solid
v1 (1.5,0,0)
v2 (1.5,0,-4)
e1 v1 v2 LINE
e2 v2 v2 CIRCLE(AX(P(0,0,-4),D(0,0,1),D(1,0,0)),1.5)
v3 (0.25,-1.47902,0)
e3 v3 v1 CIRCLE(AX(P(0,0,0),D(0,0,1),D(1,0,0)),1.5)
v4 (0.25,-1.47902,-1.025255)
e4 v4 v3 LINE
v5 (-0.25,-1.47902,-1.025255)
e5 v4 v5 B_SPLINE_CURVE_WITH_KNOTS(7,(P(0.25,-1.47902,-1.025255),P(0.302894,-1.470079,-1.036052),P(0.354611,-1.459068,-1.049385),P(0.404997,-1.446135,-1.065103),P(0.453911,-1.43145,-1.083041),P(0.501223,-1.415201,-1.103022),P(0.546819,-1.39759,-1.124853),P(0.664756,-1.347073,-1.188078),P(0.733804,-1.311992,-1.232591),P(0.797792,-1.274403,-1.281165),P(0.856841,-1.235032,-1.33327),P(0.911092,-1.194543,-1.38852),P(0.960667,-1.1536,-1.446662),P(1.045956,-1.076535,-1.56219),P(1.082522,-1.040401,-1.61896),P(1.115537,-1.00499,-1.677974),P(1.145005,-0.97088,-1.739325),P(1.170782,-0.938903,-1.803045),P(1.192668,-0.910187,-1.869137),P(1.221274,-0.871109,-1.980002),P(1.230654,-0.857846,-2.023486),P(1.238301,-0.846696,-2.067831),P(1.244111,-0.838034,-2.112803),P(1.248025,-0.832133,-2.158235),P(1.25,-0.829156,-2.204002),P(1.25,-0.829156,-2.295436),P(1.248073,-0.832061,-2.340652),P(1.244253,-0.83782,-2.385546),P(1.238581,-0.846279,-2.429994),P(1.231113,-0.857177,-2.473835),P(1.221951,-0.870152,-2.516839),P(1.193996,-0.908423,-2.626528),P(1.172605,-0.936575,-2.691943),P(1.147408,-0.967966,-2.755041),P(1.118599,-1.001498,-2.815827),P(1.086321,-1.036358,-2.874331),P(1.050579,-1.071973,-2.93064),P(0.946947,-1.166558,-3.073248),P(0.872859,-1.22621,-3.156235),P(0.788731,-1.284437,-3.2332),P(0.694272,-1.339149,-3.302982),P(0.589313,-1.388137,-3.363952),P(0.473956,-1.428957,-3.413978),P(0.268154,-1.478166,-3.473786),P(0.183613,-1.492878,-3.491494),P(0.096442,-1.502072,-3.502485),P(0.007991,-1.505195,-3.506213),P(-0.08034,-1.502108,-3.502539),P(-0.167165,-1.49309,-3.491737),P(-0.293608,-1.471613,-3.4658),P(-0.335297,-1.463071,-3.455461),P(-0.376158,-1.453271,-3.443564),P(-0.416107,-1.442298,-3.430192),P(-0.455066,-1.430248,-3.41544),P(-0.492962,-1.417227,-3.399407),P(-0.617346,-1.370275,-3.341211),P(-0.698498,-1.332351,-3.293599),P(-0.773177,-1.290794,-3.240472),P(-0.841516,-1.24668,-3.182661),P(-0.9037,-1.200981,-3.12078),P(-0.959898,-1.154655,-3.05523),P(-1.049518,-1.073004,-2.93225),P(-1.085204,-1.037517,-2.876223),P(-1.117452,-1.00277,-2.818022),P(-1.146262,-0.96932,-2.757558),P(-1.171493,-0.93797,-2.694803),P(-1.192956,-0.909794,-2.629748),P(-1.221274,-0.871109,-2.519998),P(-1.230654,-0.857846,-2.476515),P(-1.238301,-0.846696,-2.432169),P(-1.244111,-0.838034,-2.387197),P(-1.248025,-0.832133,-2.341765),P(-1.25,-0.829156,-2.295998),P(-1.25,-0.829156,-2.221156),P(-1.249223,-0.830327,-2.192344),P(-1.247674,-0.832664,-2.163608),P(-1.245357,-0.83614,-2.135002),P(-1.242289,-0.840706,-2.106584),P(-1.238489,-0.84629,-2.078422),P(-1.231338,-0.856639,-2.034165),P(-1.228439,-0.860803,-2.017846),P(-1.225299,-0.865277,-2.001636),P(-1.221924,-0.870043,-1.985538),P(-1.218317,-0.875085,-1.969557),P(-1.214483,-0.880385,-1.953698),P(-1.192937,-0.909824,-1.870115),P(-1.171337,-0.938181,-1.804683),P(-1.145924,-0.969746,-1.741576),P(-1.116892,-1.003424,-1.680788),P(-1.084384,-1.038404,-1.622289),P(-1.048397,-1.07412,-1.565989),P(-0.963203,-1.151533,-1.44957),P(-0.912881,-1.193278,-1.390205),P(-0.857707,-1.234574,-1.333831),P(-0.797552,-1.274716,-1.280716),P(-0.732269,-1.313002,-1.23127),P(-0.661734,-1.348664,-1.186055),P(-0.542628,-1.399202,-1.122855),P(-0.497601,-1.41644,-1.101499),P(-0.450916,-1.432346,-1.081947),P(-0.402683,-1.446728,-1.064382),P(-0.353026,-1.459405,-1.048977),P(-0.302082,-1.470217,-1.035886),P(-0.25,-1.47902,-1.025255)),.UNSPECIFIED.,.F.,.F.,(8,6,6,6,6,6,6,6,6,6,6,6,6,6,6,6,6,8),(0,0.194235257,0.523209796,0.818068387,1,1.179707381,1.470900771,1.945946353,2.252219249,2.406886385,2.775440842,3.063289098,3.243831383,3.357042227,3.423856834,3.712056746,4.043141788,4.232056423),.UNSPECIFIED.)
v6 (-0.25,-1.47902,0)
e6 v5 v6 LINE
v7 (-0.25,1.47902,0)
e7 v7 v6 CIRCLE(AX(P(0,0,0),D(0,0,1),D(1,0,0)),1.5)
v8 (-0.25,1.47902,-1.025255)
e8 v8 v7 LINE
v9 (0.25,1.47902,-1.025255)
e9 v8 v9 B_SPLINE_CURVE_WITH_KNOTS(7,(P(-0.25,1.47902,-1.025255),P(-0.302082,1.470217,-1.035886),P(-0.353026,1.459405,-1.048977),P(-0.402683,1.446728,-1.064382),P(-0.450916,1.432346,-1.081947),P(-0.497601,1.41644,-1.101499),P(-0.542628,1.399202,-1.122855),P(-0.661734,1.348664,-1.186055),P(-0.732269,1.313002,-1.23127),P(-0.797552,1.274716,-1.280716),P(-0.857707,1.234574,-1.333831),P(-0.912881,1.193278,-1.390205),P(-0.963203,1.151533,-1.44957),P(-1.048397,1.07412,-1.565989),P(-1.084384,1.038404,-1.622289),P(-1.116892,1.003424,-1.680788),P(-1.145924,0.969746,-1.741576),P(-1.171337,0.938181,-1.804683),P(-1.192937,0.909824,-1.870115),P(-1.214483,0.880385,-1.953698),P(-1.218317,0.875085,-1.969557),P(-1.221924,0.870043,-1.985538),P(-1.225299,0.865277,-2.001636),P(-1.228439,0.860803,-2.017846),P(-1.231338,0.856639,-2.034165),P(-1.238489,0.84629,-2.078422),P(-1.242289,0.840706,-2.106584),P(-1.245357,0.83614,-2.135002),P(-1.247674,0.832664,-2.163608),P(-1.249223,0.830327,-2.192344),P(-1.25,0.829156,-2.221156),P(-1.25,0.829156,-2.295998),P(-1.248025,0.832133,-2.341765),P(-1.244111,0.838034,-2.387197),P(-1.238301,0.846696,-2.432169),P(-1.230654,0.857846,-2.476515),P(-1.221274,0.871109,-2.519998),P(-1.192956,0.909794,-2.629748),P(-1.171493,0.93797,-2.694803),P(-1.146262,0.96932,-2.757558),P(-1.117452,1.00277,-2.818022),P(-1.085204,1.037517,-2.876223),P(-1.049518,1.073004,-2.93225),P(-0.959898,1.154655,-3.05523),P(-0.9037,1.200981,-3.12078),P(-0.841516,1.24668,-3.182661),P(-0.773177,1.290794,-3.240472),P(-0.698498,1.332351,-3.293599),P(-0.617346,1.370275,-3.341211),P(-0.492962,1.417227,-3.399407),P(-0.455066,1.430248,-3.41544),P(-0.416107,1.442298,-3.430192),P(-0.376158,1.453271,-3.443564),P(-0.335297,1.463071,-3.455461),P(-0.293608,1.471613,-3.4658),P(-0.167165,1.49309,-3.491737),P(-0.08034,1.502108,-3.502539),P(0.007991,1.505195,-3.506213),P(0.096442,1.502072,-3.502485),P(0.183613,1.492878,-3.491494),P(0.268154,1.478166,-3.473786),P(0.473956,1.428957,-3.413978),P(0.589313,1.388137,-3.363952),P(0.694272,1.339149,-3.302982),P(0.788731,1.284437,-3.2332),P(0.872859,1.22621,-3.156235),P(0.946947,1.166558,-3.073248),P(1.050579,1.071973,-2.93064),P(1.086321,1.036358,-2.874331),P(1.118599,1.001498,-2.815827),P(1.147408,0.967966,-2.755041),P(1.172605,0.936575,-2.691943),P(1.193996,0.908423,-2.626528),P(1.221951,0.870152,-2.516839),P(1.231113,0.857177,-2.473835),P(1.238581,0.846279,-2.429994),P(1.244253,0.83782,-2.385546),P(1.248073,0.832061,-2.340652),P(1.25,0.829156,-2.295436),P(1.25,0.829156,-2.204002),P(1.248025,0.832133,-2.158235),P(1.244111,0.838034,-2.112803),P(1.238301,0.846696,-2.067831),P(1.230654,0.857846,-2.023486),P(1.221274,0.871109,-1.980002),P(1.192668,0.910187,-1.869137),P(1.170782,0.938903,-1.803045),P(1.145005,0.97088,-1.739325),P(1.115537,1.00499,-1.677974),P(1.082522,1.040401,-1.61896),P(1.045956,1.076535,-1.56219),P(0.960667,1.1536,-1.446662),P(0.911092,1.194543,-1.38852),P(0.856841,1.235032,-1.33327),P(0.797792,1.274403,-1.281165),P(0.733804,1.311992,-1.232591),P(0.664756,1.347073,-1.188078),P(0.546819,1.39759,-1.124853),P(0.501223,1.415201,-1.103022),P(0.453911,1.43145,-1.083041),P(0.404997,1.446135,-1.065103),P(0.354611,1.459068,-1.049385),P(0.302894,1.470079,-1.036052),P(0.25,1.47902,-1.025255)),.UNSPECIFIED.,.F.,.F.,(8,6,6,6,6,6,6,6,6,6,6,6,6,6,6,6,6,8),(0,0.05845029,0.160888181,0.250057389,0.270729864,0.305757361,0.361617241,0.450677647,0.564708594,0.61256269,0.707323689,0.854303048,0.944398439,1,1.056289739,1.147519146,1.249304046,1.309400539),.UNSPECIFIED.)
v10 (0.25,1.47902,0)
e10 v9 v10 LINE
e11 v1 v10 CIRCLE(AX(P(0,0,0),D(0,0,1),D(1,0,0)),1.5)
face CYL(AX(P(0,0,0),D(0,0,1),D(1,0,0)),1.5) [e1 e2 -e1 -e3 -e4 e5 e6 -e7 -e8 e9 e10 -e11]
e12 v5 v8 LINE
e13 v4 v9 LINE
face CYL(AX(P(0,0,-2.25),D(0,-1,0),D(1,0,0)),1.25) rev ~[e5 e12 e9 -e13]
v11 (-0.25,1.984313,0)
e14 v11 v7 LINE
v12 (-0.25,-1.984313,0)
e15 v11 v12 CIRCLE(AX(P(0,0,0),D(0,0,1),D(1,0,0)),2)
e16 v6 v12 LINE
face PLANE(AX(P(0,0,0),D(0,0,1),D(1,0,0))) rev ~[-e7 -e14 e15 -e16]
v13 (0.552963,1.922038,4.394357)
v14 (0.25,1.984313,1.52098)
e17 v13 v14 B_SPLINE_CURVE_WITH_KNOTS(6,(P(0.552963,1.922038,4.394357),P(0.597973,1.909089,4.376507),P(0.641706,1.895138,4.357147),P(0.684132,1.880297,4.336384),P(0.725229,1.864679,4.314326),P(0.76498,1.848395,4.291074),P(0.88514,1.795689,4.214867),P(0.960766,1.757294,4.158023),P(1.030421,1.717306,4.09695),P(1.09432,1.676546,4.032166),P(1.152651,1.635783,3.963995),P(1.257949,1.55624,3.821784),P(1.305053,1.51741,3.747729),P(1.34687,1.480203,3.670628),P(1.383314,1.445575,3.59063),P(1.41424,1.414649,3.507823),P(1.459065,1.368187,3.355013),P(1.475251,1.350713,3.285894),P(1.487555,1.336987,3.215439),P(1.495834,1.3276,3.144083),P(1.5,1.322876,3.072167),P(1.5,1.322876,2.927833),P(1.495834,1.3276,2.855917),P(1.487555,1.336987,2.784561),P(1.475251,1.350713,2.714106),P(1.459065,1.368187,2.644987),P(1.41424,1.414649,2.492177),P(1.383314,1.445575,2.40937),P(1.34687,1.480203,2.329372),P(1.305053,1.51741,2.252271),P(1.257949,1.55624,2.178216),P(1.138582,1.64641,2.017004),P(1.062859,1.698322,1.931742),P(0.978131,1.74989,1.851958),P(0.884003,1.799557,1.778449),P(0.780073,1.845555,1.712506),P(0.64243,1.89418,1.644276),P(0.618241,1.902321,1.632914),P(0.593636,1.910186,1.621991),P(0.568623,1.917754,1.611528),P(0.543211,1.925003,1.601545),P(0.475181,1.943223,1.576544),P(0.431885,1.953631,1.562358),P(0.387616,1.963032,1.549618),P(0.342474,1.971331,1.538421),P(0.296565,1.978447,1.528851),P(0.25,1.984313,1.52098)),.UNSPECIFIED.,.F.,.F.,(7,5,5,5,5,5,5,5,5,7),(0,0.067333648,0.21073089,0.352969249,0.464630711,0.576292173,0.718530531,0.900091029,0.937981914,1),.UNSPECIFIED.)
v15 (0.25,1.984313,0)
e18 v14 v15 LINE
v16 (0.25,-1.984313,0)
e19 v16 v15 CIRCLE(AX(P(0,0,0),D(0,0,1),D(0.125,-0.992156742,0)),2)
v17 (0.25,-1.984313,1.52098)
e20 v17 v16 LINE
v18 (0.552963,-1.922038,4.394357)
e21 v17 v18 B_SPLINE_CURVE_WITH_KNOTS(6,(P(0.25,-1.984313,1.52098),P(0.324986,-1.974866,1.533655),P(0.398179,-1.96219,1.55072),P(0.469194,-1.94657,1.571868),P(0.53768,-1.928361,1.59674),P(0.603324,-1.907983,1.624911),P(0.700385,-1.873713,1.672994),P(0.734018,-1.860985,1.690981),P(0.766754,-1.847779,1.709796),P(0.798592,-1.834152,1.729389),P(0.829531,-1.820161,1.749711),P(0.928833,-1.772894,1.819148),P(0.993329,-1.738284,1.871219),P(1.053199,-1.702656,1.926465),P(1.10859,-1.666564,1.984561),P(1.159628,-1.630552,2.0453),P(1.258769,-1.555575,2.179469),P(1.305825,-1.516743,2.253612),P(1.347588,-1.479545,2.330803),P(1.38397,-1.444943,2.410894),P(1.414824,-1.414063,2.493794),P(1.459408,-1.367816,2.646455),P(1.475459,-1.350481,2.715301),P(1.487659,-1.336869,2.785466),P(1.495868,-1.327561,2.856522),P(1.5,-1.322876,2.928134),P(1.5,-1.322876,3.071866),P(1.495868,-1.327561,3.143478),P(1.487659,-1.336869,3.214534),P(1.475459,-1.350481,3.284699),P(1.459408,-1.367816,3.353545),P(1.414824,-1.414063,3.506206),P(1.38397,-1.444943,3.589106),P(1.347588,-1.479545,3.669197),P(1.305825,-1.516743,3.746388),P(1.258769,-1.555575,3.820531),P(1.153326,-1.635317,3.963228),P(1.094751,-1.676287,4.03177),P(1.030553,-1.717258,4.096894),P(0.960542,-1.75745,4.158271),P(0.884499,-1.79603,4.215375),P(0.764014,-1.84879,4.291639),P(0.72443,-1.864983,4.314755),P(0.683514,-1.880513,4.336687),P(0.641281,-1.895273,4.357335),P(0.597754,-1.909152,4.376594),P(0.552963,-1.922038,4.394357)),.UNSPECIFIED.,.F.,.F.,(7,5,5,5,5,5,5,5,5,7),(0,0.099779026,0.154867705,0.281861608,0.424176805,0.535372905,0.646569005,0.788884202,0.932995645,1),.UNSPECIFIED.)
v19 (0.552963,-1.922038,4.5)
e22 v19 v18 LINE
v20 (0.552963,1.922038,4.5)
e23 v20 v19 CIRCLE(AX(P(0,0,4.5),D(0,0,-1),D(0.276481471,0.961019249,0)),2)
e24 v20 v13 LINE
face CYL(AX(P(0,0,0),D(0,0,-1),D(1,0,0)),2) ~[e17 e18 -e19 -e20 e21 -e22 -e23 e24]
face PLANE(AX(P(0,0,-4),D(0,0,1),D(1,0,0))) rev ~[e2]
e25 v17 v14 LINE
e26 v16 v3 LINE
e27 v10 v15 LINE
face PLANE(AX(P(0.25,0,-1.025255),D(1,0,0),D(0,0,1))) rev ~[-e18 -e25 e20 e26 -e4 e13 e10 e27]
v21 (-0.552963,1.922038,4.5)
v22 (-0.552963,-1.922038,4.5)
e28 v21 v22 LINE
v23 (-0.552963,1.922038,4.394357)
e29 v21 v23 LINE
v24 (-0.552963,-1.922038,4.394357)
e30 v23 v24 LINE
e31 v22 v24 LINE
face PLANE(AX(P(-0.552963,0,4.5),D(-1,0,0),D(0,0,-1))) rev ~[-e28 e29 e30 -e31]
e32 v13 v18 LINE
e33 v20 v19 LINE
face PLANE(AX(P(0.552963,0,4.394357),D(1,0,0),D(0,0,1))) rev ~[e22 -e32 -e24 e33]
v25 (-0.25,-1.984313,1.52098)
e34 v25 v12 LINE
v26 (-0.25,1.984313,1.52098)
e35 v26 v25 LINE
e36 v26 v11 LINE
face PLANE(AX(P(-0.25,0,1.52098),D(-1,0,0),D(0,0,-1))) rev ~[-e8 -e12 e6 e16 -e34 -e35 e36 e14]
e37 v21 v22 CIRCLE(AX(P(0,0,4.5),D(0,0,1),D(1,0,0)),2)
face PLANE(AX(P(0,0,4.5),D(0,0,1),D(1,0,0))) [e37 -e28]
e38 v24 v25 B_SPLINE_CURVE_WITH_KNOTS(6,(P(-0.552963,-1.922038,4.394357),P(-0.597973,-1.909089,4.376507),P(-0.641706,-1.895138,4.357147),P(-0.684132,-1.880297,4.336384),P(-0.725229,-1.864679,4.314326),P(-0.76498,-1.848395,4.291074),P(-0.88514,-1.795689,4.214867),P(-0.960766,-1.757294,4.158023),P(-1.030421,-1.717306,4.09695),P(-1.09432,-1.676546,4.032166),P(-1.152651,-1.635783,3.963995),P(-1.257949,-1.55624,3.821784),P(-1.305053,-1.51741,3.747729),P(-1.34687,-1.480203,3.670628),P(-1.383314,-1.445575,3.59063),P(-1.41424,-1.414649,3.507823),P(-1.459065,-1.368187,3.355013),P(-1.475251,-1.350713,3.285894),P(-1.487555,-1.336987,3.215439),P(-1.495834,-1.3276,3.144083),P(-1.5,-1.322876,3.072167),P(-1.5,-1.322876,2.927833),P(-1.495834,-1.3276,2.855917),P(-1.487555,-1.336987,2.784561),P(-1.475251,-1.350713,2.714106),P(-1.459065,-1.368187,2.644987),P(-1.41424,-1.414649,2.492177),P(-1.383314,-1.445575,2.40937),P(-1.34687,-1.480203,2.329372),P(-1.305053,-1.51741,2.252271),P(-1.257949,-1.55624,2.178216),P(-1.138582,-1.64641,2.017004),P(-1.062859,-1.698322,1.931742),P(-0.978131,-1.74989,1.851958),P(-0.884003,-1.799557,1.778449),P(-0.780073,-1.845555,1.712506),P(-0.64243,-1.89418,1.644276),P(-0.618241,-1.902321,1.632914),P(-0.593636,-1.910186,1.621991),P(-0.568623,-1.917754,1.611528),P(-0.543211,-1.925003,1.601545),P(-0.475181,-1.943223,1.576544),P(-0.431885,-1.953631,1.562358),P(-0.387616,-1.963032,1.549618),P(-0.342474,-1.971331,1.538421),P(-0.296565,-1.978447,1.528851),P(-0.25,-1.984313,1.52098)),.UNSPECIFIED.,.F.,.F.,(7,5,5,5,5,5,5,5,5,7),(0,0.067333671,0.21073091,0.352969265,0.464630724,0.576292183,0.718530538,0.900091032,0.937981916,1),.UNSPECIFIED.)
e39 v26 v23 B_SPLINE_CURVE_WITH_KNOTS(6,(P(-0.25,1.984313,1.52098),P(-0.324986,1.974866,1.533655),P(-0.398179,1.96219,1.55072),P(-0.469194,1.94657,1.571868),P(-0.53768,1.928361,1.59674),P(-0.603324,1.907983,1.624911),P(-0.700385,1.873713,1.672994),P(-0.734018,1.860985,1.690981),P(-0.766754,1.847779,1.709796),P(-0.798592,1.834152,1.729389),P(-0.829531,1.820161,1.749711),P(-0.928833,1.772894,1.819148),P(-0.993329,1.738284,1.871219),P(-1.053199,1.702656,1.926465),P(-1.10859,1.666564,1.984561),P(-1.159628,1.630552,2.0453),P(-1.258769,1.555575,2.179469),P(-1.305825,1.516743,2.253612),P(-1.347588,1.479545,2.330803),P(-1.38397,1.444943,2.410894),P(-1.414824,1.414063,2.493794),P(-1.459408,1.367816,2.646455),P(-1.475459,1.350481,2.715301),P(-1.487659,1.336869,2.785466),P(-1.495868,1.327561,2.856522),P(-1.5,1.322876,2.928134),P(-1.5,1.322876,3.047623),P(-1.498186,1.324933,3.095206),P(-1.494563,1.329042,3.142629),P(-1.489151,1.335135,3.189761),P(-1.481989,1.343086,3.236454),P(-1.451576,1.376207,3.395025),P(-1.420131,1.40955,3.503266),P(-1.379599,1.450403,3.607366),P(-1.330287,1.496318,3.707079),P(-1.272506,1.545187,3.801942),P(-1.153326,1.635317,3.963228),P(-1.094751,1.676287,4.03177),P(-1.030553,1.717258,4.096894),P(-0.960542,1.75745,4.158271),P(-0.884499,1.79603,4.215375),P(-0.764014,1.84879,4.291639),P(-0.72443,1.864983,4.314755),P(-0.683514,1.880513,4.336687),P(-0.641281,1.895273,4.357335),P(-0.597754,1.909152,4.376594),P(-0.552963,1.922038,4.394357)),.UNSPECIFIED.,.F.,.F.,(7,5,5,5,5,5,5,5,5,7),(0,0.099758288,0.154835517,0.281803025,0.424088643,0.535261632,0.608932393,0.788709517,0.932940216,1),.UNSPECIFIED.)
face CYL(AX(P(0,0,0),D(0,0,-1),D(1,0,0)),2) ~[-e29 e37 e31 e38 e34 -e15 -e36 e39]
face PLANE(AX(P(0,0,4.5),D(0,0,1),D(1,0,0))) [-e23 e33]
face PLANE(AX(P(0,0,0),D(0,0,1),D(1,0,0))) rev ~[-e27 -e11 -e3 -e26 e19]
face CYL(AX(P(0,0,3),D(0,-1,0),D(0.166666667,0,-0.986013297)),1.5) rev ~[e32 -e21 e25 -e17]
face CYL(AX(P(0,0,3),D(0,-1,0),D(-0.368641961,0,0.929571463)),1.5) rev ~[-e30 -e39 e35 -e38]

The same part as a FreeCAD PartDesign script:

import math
import FreeCAD as App
import Part
import Sketcher
from FreeCAD import Vector
Q = App.Units.Quantity

doc = App.newDocument("Part")
body = doc.addObject("PartDesign::Body", "Body")

# Sketch on XY plane
sketch1 = body.newObject("Sketcher::SketchObject", "Sketch")
sketch1.AttachmentSupport = (doc.getObject("XY_Plane"), [""])
sketch1.MapMode = "FlatFace"
sketch1.addGeometry(Part.Circle(Vector(0, 0, 0), Vector(0, 0, 1), 1.5), False)
sketch1.addConstraint([
    Sketcher.Constraint("Coincident", 0, 3, -1, 1),
    Sketcher.Constraint("Diameter", 0, Q("3 mm")),
])
pad1 = body.newObject("PartDesign::Pad", "Pad")
pad1.Profile = sketch1
pad1.Length = 4
pad1.Reversed = True

# Sketch on XY plane
sketch2 = body.newObject("Sketcher::SketchObject", "Sketch001")
sketch2.AttachmentSupport = (doc.getObject("XY_Plane"), [""])
sketch2.MapMode = "FlatFace"
sketch2.addGeometry(Part.Circle(Vector(0, 0, 0), Vector(0, 0, 1), 2), False)
sketch2.addConstraint([
    Sketcher.Constraint("Coincident", 0, 3, -1, 1),
    Sketcher.Constraint("Diameter", 0, Q("4 mm")),
])
pad2 = body.newObject("PartDesign::Pad", "Pad001")
pad2.Profile = sketch2
pad2.Length = 4.5

# Sketch on XZ plane
sketch3 = body.newObject("Sketcher::SketchObject", "Sketch002")
sketch3.AttachmentSupport = (doc.getObject("XZ_Plane"), [""])
sketch3.MapMode = "FlatFace"
sketch3.addGeometry([
    Part.ArcOfCircle(Part.Circle(Vector(0, 3, 0), Vector(0, 0, 1), 1.5), math.radians(-80), math.radians(0)),  # 0
    Part.ArcOfCircle(Part.Circle(Vector(0, 3, 0), Vector(0, 0, 1), 1.5), math.radians(0), math.radians(68)),  # 1
    Part.LineSegment(Vector(0.55, 4.39, 0), Vector(0.55, 4.5, 0)),  # 2
    Part.LineSegment(Vector(0.55, 4.5, 0), Vector(-0.55, 4.5, 0)),  # 3
    Part.LineSegment(Vector(-0.55, 4.5, 0), Vector(-0.55, 4.39, 0)),  # 4
    Part.ArcOfCircle(Part.Circle(Vector(0, 3, 0), Vector(0, 0, 1), 1.5), math.radians(112), math.radians(260)),  # 5
    Part.LineSegment(Vector(-0.25, 1.52, 0), Vector(-0.25, -1.03, 0)),  # 6
    Part.ArcOfCircle(Part.Circle(Vector(0, -2.25, 0), Vector(0, 0, 1), 1.25), math.radians(102), math.radians(360)),  # 7
    Part.ArcOfCircle(Part.Circle(Vector(0, -2.25, 0), Vector(0, 0, 1), 1.25), math.radians(0), math.radians(78)),  # 8
    Part.LineSegment(Vector(0.25, -1.03, 0), Vector(0.25, 1.52, 0)),  # 9
], False)
sketch3.addConstraint([
    Sketcher.Constraint("Tangent", 0, 2, 1, 1),
    Sketcher.Constraint("Coincident", 1, 2, 2, 1),
    Sketcher.Constraint("Coincident", 2, 2, 3, 1),
    Sketcher.Constraint("Coincident", 3, 2, 4, 1),
    Sketcher.Constraint("Coincident", 4, 2, 5, 1),
    Sketcher.Constraint("Coincident", 5, 2, 6, 1),
    Sketcher.Constraint("Coincident", 6, 2, 7, 1),
    Sketcher.Constraint("Tangent", 7, 2, 8, 1),
    Sketcher.Constraint("Coincident", 8, 2, 9, 1),
    Sketcher.Constraint("Coincident", 9, 2, 0, 1),
    Sketcher.Constraint("Vertical", 2),
    Sketcher.Constraint("Horizontal", 3),
    Sketcher.Constraint("Vertical", 4),
    Sketcher.Constraint("Vertical", 6),
    Sketcher.Constraint("Vertical", 9),
    Sketcher.Constraint("Coincident", 5, 3, 0, 3),
    Sketcher.Constraint("Equal", 0, 1),
    Sketcher.Constraint("Equal", 1, 5),
    Sketcher.Constraint("Equal", 7, 8),
    Sketcher.Constraint("Symmetric", 1, 2, 4, 2, -2),
    Sketcher.Constraint("Symmetric", 6, 2, 8, 2, -2),
    Sketcher.Constraint("Horizontal", 5, 3, 0, 2),
    Sketcher.Constraint("Horizontal", 8, 3, 7, 2),
    Sketcher.Constraint("Radius", 0, Q("1.5 mm")),
    Sketcher.Constraint("Radius", 7, Q("1.25 mm")),
    Sketcher.Constraint("DistanceY", -1, 1, 0, 3, Q("3 mm")),
    Sketcher.Constraint("DistanceX", 8, 2, 7, 2, Q("1 mm")),
    Sketcher.Constraint("DistanceY", -1, 1, 2, 2, Q("4.5 mm")),
    Sketcher.Constraint("DistanceY", 7, 3, -1, 1, Q("2.25 mm")),
    Sketcher.Constraint("DistanceX", 3, 2, 3, 1, Q("1.105926 mm")),
])
pocket1 = body.newObject("PartDesign::Pocket", "Pocket")
pocket1.Profile = sketch3
pocket1.Length = 5
pocket1.Midplane = True

doc.recompute()
